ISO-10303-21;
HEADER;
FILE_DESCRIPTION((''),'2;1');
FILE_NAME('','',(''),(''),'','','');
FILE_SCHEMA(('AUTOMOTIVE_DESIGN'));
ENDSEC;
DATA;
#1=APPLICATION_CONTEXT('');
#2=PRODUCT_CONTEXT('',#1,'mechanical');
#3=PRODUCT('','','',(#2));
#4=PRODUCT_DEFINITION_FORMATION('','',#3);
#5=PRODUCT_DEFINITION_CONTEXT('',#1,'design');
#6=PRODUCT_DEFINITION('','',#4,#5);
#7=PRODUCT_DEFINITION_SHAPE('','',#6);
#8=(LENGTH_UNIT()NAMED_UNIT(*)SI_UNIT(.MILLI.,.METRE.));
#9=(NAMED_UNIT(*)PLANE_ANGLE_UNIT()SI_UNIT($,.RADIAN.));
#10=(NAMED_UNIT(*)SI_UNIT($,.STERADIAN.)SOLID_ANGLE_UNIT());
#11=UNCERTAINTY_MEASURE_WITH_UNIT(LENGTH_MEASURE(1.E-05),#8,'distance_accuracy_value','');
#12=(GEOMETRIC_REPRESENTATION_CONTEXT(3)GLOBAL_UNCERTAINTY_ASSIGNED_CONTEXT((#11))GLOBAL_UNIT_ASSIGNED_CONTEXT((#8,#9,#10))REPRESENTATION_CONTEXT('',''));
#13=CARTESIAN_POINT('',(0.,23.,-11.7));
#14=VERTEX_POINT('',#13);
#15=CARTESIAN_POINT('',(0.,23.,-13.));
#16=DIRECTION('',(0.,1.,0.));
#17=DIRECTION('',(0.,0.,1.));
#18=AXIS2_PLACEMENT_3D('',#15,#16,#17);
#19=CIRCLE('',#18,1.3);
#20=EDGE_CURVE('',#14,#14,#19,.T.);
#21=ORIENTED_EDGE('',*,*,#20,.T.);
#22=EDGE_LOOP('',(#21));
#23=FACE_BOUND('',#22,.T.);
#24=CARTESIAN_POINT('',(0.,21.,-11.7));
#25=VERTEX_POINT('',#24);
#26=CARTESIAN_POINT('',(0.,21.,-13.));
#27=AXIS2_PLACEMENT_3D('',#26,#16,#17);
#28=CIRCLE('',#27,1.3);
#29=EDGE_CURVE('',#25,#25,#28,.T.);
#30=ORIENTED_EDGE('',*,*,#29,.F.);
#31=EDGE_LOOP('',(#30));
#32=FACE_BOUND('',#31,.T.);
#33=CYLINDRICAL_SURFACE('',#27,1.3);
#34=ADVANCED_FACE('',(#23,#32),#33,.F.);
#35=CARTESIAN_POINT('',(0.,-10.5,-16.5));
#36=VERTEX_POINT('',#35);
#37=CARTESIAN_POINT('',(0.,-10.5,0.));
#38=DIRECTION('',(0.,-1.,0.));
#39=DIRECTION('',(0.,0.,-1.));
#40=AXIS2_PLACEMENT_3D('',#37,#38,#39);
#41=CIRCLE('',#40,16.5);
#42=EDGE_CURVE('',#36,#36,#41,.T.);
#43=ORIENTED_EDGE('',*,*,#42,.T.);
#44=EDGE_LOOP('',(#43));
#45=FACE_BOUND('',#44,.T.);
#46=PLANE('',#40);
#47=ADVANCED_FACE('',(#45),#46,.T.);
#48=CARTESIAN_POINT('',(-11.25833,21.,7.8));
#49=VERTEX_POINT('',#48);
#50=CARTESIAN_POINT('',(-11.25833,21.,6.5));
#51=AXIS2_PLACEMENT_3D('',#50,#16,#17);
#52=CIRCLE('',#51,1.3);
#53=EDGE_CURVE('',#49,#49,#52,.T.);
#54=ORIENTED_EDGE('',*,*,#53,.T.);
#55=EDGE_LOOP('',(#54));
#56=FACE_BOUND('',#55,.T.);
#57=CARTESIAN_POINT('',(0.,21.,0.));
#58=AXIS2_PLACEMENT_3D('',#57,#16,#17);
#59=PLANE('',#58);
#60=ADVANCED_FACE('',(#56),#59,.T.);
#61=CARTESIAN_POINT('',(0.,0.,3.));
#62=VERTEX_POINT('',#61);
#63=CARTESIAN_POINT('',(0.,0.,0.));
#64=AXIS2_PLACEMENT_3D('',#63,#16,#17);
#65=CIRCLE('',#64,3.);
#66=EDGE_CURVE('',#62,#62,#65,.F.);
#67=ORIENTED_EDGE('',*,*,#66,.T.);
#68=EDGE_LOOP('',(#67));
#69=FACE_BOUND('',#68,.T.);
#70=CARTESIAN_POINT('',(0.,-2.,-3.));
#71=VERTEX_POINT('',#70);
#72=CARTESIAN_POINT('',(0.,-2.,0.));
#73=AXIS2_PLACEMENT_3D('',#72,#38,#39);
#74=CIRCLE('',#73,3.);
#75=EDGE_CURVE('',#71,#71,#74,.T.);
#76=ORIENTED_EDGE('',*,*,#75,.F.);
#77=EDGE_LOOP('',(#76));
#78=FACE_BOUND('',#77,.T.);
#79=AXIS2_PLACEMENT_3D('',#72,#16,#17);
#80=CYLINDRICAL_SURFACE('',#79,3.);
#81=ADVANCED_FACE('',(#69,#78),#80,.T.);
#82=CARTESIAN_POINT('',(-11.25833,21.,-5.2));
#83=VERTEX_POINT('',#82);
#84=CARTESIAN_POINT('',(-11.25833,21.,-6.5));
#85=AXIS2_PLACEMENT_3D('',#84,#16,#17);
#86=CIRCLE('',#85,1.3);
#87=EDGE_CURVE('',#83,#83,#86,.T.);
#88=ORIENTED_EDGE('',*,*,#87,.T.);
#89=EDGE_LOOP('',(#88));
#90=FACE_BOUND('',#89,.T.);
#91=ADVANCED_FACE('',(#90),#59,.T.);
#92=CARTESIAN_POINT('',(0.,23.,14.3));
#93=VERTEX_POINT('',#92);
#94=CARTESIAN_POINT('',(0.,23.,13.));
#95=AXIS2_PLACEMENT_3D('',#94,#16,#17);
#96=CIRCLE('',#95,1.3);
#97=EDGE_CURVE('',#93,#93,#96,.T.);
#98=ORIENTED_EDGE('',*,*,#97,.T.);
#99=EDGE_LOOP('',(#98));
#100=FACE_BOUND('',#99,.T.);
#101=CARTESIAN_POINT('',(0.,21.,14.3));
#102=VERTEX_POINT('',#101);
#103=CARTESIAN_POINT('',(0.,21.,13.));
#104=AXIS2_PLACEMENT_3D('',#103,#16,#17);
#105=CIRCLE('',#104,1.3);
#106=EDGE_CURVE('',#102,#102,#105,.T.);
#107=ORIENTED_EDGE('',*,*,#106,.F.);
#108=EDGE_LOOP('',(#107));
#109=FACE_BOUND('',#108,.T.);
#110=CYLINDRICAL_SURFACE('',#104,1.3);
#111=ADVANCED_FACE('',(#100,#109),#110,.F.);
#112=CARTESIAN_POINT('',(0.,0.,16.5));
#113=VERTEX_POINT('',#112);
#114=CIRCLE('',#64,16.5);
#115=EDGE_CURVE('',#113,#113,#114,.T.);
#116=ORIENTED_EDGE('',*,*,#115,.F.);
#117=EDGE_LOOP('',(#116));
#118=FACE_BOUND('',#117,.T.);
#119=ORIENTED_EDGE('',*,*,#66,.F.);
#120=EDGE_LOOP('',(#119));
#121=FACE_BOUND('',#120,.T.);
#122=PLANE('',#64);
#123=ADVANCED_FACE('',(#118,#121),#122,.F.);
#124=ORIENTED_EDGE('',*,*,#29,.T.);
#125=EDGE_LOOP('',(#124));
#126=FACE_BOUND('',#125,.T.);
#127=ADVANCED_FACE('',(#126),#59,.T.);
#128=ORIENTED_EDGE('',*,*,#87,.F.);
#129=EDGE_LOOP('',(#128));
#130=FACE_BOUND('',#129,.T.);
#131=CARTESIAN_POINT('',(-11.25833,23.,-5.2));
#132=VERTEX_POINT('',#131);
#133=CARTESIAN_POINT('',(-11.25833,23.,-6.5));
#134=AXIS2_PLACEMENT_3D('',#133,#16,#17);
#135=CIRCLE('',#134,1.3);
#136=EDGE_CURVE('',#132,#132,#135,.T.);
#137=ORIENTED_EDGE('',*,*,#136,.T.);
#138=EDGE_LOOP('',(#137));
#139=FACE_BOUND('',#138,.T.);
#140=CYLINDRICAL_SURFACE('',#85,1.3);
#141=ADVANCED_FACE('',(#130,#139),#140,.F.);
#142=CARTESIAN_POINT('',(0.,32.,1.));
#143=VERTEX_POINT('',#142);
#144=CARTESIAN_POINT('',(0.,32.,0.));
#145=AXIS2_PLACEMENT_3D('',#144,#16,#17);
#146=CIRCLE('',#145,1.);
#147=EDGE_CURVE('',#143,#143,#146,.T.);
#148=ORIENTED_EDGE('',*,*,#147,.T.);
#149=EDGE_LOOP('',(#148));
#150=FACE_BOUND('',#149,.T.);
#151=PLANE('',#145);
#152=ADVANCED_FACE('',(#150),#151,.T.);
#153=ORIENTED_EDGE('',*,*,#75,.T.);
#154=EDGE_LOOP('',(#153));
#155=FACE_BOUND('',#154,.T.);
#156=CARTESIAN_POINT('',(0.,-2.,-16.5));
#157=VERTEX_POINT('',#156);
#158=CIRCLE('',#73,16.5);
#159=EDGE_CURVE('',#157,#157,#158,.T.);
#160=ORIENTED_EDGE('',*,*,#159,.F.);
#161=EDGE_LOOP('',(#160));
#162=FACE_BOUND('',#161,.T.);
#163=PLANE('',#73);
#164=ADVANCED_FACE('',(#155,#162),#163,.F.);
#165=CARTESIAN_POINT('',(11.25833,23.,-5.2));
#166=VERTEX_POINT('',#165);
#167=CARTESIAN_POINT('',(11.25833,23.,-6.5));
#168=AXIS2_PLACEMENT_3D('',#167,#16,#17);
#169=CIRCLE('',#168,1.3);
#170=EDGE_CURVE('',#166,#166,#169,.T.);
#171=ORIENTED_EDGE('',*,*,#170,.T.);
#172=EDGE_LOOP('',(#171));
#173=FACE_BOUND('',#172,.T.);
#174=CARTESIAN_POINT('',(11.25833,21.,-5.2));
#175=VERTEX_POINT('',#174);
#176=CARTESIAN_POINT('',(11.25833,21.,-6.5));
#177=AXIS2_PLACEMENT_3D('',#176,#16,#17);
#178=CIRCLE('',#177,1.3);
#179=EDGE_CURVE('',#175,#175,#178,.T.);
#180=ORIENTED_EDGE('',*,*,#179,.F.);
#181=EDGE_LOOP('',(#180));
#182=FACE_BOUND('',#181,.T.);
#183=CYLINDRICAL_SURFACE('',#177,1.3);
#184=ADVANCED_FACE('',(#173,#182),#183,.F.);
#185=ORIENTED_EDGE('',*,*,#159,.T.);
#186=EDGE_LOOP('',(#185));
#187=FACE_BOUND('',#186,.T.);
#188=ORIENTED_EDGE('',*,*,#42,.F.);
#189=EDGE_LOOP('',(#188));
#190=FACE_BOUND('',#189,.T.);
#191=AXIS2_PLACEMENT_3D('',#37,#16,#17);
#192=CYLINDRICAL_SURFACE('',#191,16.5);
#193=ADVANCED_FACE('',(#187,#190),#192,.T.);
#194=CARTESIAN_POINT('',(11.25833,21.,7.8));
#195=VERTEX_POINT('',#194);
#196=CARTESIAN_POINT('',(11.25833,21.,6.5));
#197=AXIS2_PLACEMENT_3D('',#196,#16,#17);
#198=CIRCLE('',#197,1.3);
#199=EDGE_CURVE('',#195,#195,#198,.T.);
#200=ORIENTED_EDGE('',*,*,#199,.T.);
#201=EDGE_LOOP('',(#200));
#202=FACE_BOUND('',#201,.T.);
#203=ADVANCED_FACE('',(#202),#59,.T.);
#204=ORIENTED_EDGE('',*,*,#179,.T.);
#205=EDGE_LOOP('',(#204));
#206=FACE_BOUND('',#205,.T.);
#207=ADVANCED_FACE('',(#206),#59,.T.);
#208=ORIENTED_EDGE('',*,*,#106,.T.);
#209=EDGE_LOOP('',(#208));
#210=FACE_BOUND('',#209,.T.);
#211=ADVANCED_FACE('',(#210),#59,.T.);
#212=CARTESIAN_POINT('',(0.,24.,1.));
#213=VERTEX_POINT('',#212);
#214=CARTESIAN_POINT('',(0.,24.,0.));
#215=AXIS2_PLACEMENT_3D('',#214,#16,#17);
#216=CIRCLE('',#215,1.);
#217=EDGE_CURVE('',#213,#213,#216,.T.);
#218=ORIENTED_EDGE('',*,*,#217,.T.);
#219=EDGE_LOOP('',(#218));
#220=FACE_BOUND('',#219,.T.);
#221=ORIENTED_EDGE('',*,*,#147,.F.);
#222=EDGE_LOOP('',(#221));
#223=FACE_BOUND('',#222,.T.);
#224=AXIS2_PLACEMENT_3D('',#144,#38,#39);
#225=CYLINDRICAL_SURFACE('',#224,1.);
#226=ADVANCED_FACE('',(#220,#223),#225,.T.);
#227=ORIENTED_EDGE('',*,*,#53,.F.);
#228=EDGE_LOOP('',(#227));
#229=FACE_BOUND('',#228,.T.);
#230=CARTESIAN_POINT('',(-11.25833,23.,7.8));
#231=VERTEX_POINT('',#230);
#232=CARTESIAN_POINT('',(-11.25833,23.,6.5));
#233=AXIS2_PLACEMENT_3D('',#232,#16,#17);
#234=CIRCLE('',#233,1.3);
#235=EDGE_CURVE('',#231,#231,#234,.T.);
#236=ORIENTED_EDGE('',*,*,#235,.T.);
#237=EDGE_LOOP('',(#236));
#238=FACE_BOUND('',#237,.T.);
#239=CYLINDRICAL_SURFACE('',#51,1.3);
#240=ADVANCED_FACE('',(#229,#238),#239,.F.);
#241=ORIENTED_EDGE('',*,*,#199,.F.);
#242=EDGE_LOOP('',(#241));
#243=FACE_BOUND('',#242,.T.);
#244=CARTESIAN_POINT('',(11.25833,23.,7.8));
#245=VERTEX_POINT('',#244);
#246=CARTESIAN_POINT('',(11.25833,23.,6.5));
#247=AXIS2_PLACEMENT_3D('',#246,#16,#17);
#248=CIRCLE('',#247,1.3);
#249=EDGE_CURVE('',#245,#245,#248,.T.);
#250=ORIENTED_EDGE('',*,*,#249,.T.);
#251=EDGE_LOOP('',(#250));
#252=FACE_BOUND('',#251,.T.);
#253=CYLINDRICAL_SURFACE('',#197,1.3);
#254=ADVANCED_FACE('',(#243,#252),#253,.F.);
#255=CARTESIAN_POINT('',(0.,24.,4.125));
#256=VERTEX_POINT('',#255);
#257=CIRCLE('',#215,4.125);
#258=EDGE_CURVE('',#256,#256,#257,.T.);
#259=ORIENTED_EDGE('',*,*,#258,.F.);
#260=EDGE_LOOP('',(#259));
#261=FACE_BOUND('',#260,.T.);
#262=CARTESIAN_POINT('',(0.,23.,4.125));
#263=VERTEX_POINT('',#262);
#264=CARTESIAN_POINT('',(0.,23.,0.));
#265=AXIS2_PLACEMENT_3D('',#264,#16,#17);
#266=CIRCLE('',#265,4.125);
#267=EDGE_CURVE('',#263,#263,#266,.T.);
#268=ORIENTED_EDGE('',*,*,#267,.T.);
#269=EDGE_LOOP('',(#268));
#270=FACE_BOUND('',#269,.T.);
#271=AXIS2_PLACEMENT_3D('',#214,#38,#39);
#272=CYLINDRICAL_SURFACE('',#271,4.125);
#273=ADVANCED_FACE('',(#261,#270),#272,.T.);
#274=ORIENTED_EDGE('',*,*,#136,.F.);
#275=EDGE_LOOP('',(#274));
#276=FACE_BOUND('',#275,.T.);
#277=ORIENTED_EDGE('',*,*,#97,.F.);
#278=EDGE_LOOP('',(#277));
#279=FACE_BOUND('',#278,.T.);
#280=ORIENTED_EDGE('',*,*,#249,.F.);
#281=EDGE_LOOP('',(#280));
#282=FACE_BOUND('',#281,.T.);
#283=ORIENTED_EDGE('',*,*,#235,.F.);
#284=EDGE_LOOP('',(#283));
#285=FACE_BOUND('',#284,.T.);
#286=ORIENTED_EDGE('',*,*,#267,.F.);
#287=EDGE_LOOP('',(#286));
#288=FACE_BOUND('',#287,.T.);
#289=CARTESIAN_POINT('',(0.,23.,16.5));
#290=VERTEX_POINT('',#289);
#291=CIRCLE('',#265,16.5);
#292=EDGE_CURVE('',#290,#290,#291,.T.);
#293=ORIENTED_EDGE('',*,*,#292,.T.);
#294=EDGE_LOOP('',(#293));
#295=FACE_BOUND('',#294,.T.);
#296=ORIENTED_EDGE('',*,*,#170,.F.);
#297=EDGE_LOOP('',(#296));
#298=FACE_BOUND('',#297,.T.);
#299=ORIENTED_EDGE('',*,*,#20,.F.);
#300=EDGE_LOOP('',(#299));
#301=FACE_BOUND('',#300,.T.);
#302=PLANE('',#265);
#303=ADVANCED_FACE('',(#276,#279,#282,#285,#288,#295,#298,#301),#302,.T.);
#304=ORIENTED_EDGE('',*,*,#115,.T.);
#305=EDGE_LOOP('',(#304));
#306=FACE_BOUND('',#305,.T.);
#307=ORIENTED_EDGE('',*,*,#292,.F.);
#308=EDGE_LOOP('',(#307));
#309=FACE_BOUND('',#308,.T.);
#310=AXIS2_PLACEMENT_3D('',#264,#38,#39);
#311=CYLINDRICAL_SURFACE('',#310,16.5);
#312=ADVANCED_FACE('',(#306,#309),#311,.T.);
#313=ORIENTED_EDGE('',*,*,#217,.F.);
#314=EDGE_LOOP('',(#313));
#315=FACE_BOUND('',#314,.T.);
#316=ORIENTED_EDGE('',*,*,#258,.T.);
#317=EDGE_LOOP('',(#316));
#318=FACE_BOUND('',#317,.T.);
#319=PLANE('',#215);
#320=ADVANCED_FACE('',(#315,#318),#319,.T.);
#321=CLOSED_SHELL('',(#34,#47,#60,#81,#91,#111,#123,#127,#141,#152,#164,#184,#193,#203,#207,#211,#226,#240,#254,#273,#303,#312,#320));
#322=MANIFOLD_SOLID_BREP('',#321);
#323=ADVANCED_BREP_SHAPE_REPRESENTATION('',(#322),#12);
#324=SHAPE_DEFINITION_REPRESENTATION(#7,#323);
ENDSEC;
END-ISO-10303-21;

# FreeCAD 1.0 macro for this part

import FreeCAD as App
import Part
import Sketcher
from FreeCAD import Vector
Q = App.Units.Quantity

doc = App.newDocument("Part")
body = doc.addObject("PartDesign::Body", "Body")

# Sketch on XZ plane
sketch1 = body.newObject("Sketcher::SketchObject", "Sketch")
sketch1.AttachmentSupport = (doc.getObject("XZ_Plane"), [""])
sketch1.MapMode = "FlatFace"
sketch1.addGeometry(Part.Circle(Vector(0, 0, 0), Vector(0, 0, 1), 16.5), False)
sketch1.addConstraint([
    Sketcher.Constraint("Coincident", 0, 3, -1, 1),
    Sketcher.Constraint("Diameter", 0, Q("33 mm")),
])
pad1 = body.newObject("PartDesign::Pad", "Pad")
pad1.Profile = sketch1
pad1.Length = 23
pad1.Reversed = True

# Sketch on XZ plane
sketch2 = body.newObject("Sketcher::SketchObject", "Sketch001")
sketch2.AttachmentSupport = (doc.getObject("XZ_Plane"), [""])
sketch2.MapMode = "FlatFace"
sketch2.AttachmentOffset = App.Placement(Vector(0, 0, -23), App.Rotation())
sketch2.addGeometry(Part.Circle(Vector(0, 0, 0), Vector(0, 0, 1), 4.125), False)
sketch2.addConstraint([
    Sketcher.Constraint("Coincident", 0, 3, -1, 1),
    Sketcher.Constraint("Diameter", 0, Q("8.25 mm")),
])
pad2 = body.newObject("PartDesign::Pad", "Pad001")
pad2.Profile = sketch2
pad2.Length = 1
pad2.Reversed = True

# Sketch on XZ plane
sketch3 = body.newObject("Sketcher::SketchObject", "Sketch002")
sketch3.AttachmentSupport = (doc.getObject("XZ_Plane"), [""])
sketch3.MapMode = "FlatFace"
sketch3.AttachmentOffset = App.Placement(Vector(0, 0, -24), App.Rotation())
sketch3.addGeometry(Part.Circle(Vector(0, 0, 0), Vector(0, 0, 1), 1), False)
sketch3.addConstraint([
    Sketcher.Constraint("Coincident", 0, 3, -1, 1),
    Sketcher.Constraint("Diameter", 0, Q("2 mm")),
])
pad3 = body.newObject("PartDesign::Pad", "Pad002")
pad3.Profile = sketch3
pad3.Length = 8
pad3.Reversed = True

# Sketch on XZ plane
sketch4 = body.newObject("Sketcher::SketchObject", "Sketch003")
sketch4.AttachmentSupport = (doc.getObject("XZ_Plane"), [""])
sketch4.MapMode = "FlatFace"
sketch4.addGeometry(Part.Circle(Vector(0, 0, 0), Vector(0, 0, 1), 3), False)
sketch4.addConstraint([
    Sketcher.Constraint("Coincident", 0, 3, -1, 1),
    Sketcher.Constraint("Diameter", 0, Q("6 mm")),
])
pad4 = body.newObject("PartDesign::Pad", "Pad003")
pad4.Profile = sketch4
pad4.Length = 2

# Sketch on XZ plane
sketch5 = body.newObject("Sketcher::SketchObject", "Sketch004")
sketch5.AttachmentSupport = (doc.getObject("XZ_Plane"), [""])
sketch5.MapMode = "FlatFace"
sketch5.AttachmentOffset = App.Placement(Vector(0, 0, 10.5), App.Rotation())
sketch5.addGeometry(Part.Circle(Vector(0, 0, 0), Vector(0, 0, 1), 16.5), False)
sketch5.addConstraint([
    Sketcher.Constraint("Coincident", 0, 3, -1, 1),
    Sketcher.Constraint("Diameter", 0, Q("33 mm")),
])
pad5 = body.newObject("PartDesign::Pad", "Pad004")
pad5.Profile = sketch5
pad5.Length = 8.5
pad5.Reversed = True

# Sketch on XZ plane
sketch6 = body.newObject("Sketcher::SketchObject", "Sketch005")
sketch6.AttachmentSupport = (doc.getObject("XZ_Plane"), [""])
sketch6.MapMode = "FlatFace"
sketch6.AttachmentOffset = App.Placement(Vector(0, 0, -23), App.Rotation())
sketch6.addGeometry([
    Part.Circle(Vector(-11.25833, 6.5, 0), Vector(0, 0, 1), 1.3),  # 0
    Part.Circle(Vector(0, 13, 0), Vector(0, 0, 1), 1.3),  # 1
    Part.Circle(Vector(11.25833, 6.5, 0), Vector(0, 0, 1), 1.3),  # 2
    Part.Circle(Vector(11.25833, -6.5, 0), Vector(0, 0, 1), 1.3),  # 3
    Part.Circle(Vector(0, -13, 0), Vector(0, 0, 1), 1.3),  # 4
    Part.Circle(Vector(-11.25833, -6.5, 0), Vector(0, 0, 1), 1.3),  # 5
], False)
sketch6.addConstraint([
    Sketcher.Constraint("Equal", 0, 1),
    Sketcher.Constraint("Equal", 1, 2),
    Sketcher.Constraint("Equal", 2, 3),
    Sketcher.Constraint("Equal", 3, 4),
    Sketcher.Constraint("Equal", 4, 5),
    Sketcher.Constraint("Symmetric", 0, 3, 3, 3, -1, 1),
    Sketcher.Constraint("Symmetric", 1, 3, 4, 3, -1, 1),
    Sketcher.Constraint("Symmetric", 2, 3, 5, 3, -1, 1),
    Sketcher.Constraint("Symmetric", 0, 3, 2, 3, -2),
    Sketcher.Constraint("PointOnObject", 1, 3, -2),
    Sketcher.Constraint("Diameter", 0, Q("2.6 mm")),
    Sketcher.Constraint("DistanceY", -1, 1, 1, 3, Q("13 mm")),
    Sketcher.Constraint("DistanceY", 3, 3, 2, 3, Q("13 mm")),
    Sketcher.Constraint("DistanceX", 0, 3, -1, 1, Q("11.25833 mm")),
])
pocket1 = body.newObject("PartDesign::Pocket", "Pocket")
pocket1.Profile = sketch6
pocket1.Length = 2
pocket1.Reversed = True

doc.recompute()
